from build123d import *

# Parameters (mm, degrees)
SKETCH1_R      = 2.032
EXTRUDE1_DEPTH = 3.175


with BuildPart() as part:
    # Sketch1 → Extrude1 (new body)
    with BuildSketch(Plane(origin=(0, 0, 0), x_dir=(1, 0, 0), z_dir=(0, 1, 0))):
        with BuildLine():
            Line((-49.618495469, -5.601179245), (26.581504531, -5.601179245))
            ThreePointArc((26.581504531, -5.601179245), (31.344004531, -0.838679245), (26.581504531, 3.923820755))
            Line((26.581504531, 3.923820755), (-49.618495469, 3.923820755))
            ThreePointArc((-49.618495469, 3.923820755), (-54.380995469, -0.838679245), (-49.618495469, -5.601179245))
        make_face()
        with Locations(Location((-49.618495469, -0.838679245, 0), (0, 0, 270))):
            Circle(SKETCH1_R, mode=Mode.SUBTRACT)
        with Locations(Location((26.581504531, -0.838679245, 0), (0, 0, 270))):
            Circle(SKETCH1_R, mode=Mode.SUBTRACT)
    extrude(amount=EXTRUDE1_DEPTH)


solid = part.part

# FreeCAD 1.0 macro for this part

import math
import FreeCAD as App
import Part
import Sketcher

V = App.Vector
Q = App.Units.Quantity

doc = App.newDocument("Part")
params = doc.addObject("Spreadsheet::Sheet", "Params")
for row, (alias, value) in enumerate([
    ("sketch1_diameter", "0.16 in"),
    ("sketch1_width", "3 in"),
    ("sketch1_radius", "0.1875 in"),
    ("pad1_length", "0.125 in"),
], start=1):
    params.set(f"A{row}", alias)
    params.set(f"B{row}", "=" + value)
    params.setAlias(f"B{row}", alias)

body = doc.addObject("PartDesign::Body", "Body")

# Sketch on XZ plane
sketch1 = body.newObject("Sketcher::SketchObject", "Sketch")
sketch1.AttachmentSupport = (doc.getObject("XZ_Plane"), [""])
sketch1.MapMode = "FlatFace"
sketch1.addGeometry([
    Part.LineSegment(V(-49.6, 5.6, 0), V(26.6, 5.6, 0)),  # 0
    Part.ArcOfCircle(Part.Circle(V(26.6, 0.8, 0), V(0, 0, 1), 4.8), math.radians(-90), math.radians(90)),  # 1
    Part.LineSegment(V(26.6, -3.9, 0), V(-49.6, -3.9, 0)),  # 2
    Part.ArcOfCircle(Part.Circle(V(-49.6, 0.8, 0), V(0, 0, 1), 4.8), math.radians(90), math.radians(270)),  # 3
    Part.Circle(V(-49.6, 0.8, 0), V(0, 0, 1), 2),  # 4
    Part.Circle(V(26.6, 0.8, 0), V(0, 0, 1), 2),  # 5
], False)
sketch1.addConstraint([
    Sketcher.Constraint("Tangent", 0, 2, 1, 2),
    Sketcher.Constraint("Tangent", 1, 1, 2, 1),
    Sketcher.Constraint("Tangent", 2, 2, 3, 2),
    Sketcher.Constraint("Tangent", 3, 1, 0, 1),
    Sketcher.Constraint("Horizontal", 0),
    Sketcher.Constraint("Horizontal", 2),
    Sketcher.Constraint("Coincident", 4, 3, 3, 3),
    Sketcher.Constraint("Coincident", 5, 3, 1, 3),
    Sketcher.Constraint("Equal", 4, 5),
    Sketcher.Constraint("Diameter", 4, Q("0.16 in")),
    Sketcher.Constraint("DistanceX", 0, 1, 0, 2, Q("3 in")),
    Sketcher.Constraint("Radius", 1, Q("0.1875 in")),
    Sketcher.Constraint("DistanceY", -1, 1, 1, 3, Q("0.838679 mm")),
    Sketcher.Constraint("DistanceX", -1, 1, 1, 3, Q("26.581505 mm")),
])
sketch1.setExpression("Constraints[9]", "Params.sketch1_diameter")
sketch1.setExpression("Constraints[10]", "Params.sketch1_width")
sketch1.setExpression("Constraints[11]", "Params.sketch1_radius")
pad1 = body.newObject("PartDesign::Pad", "Pad")
pad1.Profile = sketch1
pad1.setExpression("Length", "Params.pad1_length")
pad1.Reversed = True

doc.recompute()
